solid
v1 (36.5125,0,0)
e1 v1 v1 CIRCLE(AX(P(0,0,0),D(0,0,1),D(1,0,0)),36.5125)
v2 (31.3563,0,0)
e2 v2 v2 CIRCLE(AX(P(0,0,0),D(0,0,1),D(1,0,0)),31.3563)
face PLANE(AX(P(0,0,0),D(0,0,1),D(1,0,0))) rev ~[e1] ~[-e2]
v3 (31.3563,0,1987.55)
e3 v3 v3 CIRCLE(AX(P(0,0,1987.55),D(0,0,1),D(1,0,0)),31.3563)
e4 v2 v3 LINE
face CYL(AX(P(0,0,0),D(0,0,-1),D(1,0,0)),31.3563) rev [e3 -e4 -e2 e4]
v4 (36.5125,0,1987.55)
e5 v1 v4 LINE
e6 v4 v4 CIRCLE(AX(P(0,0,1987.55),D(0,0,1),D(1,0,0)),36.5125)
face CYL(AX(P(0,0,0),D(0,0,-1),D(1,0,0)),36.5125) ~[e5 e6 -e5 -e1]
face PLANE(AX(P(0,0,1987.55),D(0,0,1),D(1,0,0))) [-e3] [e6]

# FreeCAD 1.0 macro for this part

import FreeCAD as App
import Part
import Sketcher
from FreeCAD import Vector
Q = App.Units.Quantity

doc = App.newDocument("Part")
body = doc.addObject("PartDesign::Body", "Body")

sketch1 = doc.addObject("Sketcher::SketchObject", "Sketch")
body.addObject(sketch1)
sketch1.AttachmentSupport = (doc.XY_Plane, [""])
sketch1.MapMode = "FlatFace"
sketch1.addGeometry([
    Part.Circle(Vector(0, 0, 0), Vector(0, 0, 1), 37),
    Part.Circle(Vector(0, 0, 0), Vector(0, 0, 1), 31),
], False)
sketch1.addConstraint([
    Sketcher.Constraint("Coincident", 0, 3, -1, 1),
    Sketcher.Constraint("Coincident", 1, 3, -1, 1),
    Sketcher.Constraint("Diameter", 0, Q("2.875 in")),
    Sketcher.Constraint("Diameter", 1, Q("2.469 in")),
])
pad1 = doc.addObject("PartDesign::Pad", "Pad")
body.addObject(pad1)
pad1.Profile = sketch1
pad1.Length = Q("78.25 in")

doc.recompute()
